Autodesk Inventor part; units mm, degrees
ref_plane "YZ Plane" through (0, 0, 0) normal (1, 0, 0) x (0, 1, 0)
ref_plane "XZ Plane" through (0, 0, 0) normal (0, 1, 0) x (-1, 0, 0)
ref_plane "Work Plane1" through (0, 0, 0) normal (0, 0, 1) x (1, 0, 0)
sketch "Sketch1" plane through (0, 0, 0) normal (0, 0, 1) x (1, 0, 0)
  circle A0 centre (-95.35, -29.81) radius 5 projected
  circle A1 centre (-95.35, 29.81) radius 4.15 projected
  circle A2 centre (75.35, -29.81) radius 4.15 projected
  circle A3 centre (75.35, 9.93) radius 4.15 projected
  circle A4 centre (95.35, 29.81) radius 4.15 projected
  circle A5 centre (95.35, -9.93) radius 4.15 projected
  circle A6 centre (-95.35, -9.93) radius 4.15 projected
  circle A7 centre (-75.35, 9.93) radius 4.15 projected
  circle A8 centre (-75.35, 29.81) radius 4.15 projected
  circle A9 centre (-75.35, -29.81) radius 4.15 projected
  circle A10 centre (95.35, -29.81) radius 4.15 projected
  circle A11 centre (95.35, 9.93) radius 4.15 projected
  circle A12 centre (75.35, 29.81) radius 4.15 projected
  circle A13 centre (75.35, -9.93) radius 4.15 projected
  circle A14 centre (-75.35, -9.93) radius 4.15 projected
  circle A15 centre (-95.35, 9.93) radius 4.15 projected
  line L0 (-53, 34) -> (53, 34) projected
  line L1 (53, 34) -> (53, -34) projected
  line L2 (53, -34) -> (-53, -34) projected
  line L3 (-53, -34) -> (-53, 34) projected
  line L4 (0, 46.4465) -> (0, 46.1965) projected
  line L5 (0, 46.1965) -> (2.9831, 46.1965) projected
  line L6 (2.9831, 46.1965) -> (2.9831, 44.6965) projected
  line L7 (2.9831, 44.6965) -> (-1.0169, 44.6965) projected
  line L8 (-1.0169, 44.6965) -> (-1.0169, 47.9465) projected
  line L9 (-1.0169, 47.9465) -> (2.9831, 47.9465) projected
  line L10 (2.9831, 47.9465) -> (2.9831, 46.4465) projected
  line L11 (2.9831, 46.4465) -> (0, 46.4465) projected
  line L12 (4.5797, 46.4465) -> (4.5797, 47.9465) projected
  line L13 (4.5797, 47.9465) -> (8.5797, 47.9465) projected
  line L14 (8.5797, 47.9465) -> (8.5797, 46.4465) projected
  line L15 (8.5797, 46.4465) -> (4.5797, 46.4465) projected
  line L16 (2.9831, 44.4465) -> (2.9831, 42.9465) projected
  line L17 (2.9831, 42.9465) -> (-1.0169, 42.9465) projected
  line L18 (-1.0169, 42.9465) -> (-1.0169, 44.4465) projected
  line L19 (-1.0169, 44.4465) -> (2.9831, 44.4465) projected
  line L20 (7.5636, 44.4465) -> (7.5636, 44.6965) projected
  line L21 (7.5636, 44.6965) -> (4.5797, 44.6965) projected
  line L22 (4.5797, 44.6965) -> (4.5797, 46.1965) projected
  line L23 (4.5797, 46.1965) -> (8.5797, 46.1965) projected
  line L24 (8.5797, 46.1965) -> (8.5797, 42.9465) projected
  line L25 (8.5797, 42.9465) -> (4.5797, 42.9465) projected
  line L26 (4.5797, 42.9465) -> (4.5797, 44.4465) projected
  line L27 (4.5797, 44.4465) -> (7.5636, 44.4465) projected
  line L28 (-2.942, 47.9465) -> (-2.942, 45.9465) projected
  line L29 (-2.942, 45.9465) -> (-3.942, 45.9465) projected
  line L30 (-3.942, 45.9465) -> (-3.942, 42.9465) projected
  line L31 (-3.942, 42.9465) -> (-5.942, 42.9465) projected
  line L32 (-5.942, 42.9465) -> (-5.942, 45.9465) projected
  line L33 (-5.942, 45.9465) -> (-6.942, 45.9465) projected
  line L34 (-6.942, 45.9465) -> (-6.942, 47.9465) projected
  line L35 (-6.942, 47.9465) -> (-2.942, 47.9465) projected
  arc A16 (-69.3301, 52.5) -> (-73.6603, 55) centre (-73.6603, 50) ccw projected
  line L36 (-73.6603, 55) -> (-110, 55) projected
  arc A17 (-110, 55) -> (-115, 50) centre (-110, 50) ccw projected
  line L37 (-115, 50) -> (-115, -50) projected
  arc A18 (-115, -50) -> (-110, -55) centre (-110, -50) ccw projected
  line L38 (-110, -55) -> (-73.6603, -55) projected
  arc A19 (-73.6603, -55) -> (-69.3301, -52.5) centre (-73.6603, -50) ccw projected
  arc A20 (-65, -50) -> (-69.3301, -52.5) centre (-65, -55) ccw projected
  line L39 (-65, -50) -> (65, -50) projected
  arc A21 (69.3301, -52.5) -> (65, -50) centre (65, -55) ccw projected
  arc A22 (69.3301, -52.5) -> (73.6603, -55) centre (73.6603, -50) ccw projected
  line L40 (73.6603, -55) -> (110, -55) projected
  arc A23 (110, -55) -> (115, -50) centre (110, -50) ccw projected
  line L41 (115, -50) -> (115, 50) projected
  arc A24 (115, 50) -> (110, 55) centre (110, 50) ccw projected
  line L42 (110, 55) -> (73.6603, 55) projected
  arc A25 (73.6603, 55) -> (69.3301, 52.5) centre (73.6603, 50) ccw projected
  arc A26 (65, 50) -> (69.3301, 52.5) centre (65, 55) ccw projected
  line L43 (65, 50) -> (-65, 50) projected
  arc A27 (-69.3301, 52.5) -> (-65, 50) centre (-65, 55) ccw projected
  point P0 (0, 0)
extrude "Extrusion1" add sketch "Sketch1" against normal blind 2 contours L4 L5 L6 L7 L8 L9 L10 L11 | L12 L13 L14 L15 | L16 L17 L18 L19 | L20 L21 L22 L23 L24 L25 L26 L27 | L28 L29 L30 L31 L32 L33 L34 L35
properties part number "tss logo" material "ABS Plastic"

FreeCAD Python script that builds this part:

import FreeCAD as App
import Part
import Sketcher
from FreeCAD import Vector

doc = App.newDocument("Part")
params = doc.addObject("Spreadsheet::Sheet", "Params")
for row, (alias, value) in enumerate([
    ("sketch1_width", "4 mm"),
    ("sketch1_width2", "1 mm"),
    ("sketch1_height", "3 mm"),
    ("sketch1_height2", "1.5 mm"),
    ("pad1_length", "2 mm"),
], start=1):
    params.set(f"A{row}", alias)
    params.set(f"B{row}", "=" + value)
    params.setAlias(f"B{row}", alias)

body = doc.addObject("PartDesign::Body", "Body")
body.AllowCompound = True

# Sketch on XY plane
sketch1 = body.newObject("Sketcher::SketchObject", "Sketch")
sketch1.AttachmentSupport = (doc.getObject("XY_Plane"), [""])
sketch1.MapMode = "FlatFace"
sketch1.addGeometry([
    Part.LineSegment(Vector(0, 46.2, 0), Vector(0, 46.45, 0)),  # 0
    Part.LineSegment(Vector(0, 46.45, 0), Vector(2.98, 46.45, 0)),  # 1
    Part.LineSegment(Vector(2.98, 46.45, 0), Vector(2.98, 47.95, 0)),  # 2
    Part.LineSegment(Vector(2.98, 47.95, 0), Vector(-1.02, 47.95, 0)),  # 3
    Part.LineSegment(Vector(-1.02, 47.95, 0), Vector(-1.02, 44.7, 0)),  # 4
    Part.LineSegment(Vector(-1.02, 44.7, 0), Vector(2.98, 44.7, 0)),  # 5
    Part.LineSegment(Vector(2.98, 44.7, 0), Vector(2.98, 46.2, 0)),  # 6
    Part.LineSegment(Vector(2.98, 46.2, 0), Vector(0, 46.2, 0)),  # 7
    Part.LineSegment(Vector(4.58, 47.95, 0), Vector(4.58, 46.45, 0)),  # 8
    Part.LineSegment(Vector(4.58, 46.45, 0), Vector(8.58, 46.45, 0)),  # 9
    Part.LineSegment(Vector(8.58, 46.45, 0), Vector(8.58, 47.95, 0)),  # 10
    Part.LineSegment(Vector(8.58, 47.95, 0), Vector(4.58, 47.95, 0)),  # 11
    Part.LineSegment(Vector(2.98, 42.95, 0), Vector(2.98, 44.45, 0)),  # 12
    Part.LineSegment(Vector(2.98, 44.45, 0), Vector(-1.02, 44.45, 0)),  # 13
    Part.LineSegment(Vector(-1.02, 44.45, 0), Vector(-1.02, 42.95, 0)),  # 14
    Part.LineSegment(Vector(-1.02, 42.95, 0), Vector(2.98, 42.95, 0)),  # 15
    Part.LineSegment(Vector(7.56, 44.7, 0), Vector(7.56, 44.45, 0)),  # 16
    Part.LineSegment(Vector(7.56, 44.45, 0), Vector(4.58, 44.45, 0)),  # 17
    Part.LineSegment(Vector(4.58, 44.45, 0), Vector(4.58, 42.95, 0)),  # 18
    Part.LineSegment(Vector(4.58, 42.95, 0), Vector(8.58, 42.95, 0)),  # 19
    Part.LineSegment(Vector(8.58, 42.95, 0), Vector(8.58, 46.2, 0)),  # 20
    Part.LineSegment(Vector(8.58, 46.2, 0), Vector(4.58, 46.2, 0)),  # 21
    Part.LineSegment(Vector(4.58, 46.2, 0), Vector(4.58, 44.7, 0)),  # 22
    Part.LineSegment(Vector(4.58, 44.7, 0), Vector(7.56, 44.7, 0)),  # 23
    Part.LineSegment(Vector(-2.94, 45.95, 0), Vector(-2.94, 47.95, 0)),  # 24
    Part.LineSegment(Vector(-2.94, 47.95, 0), Vector(-6.94, 47.95, 0)),  # 25
    Part.LineSegment(Vector(-6.94, 47.95, 0), Vector(-6.94, 45.95, 0)),  # 26
    Part.LineSegment(Vector(-6.94, 45.95, 0), Vector(-5.94, 45.95, 0)),  # 27
    Part.LineSegment(Vector(-5.94, 45.95, 0), Vector(-5.94, 42.95, 0)),  # 28
    Part.LineSegment(Vector(-5.94, 42.95, 0), Vector(-3.94, 42.95, 0)),  # 29
    Part.LineSegment(Vector(-3.94, 42.95, 0), Vector(-3.94, 45.95, 0)),  # 30
    Part.LineSegment(Vector(-3.94, 45.95, 0), Vector(-2.94, 45.95, 0)),  # 31
], False)
sketch1.addConstraint([
    Sketcher.Constraint("Coincident", 0, 2, 1, 1),
    Sketcher.Constraint("Coincident", 1, 2, 2, 1),
    Sketcher.Constraint("Coincident", 2, 2, 3, 1),
    Sketcher.Constraint("Coincident", 3, 2, 4, 1),
    Sketcher.Constraint("Coincident", 4, 2, 5, 1),
    Sketcher.Constraint("Coincident", 5, 2, 6, 1),
    Sketcher.Constraint("Coincident", 6, 2, 7, 1),
    Sketcher.Constraint("Coincident", 7, 2, 0, 1),
    Sketcher.Constraint("Coincident", 8, 2, 9, 1),
    Sketcher.Constraint("Coincident", 9, 2, 10, 1),
    Sketcher.Constraint("Coincident", 10, 2, 11, 1),
    Sketcher.Constraint("Coincident", 11, 2, 8, 1),
    Sketcher.Constraint("Coincident", 12, 2, 13, 1),
    Sketcher.Constraint("Coincident", 13, 2, 14, 1),
    Sketcher.Constraint("Coincident", 14, 2, 15, 1),
    Sketcher.Constraint("Coincident", 15, 2, 12, 1),
    Sketcher.Constraint("Coincident", 16, 2, 17, 1),
    Sketcher.Constraint("Coincident", 17, 2, 18, 1),
    Sketcher.Constraint("Coincident", 18, 2, 19, 1),
    Sketcher.Constraint("Coincident", 19, 2, 20, 1),
    Sketcher.Constraint("Coincident", 20, 2, 21, 1),
    Sketcher.Constraint("Coincident", 21, 2, 22, 1),
    Sketcher.Constraint("Coincident", 22, 2, 23, 1),
    Sketcher.Constraint("Coincident", 23, 2, 16, 1),
    Sketcher.Constraint("Coincident", 24, 2, 25, 1),
    Sketcher.Constraint("Coincident", 25, 2, 26, 1),
    Sketcher.Constraint("Coincident", 26, 2, 27, 1),
    Sketcher.Constraint("Coincident", 27, 2, 28, 1),
    Sketcher.Constraint("Coincident", 28, 2, 29, 1),
    Sketcher.Constraint("Coincident", 29, 2, 30, 1),
    Sketcher.Constraint("Coincident", 30, 2, 31, 1),
    Sketcher.Constraint("Coincident", 31, 2, 24, 1),
    Sketcher.Constraint("Vertical", 0),
    Sketcher.Constraint("Horizontal", 1),
    Sketcher.Constraint("Vertical", 2),
    Sketcher.Constraint("Horizontal", 3),
    Sketcher.Constraint("Vertical", 4),
    Sketcher.Constraint("Horizontal", 5),
    Sketcher.Constraint("Vertical", 6),
    Sketcher.Constraint("Horizontal", 7),
    Sketcher.Constraint("Vertical", 8),
    Sketcher.Constraint("Horizontal", 9),
    Sketcher.Constraint("Vertical", 10),
    Sketcher.Constraint("Horizontal", 11),
    Sketcher.Constraint("Vertical", 12),
    Sketcher.Constraint("Horizontal", 13),
    Sketcher.Constraint("Vertical", 14),
    Sketcher.Constraint("Horizontal", 15),
    Sketcher.Constraint("Vertical", 16),
    Sketcher.Constraint("Horizontal", 17),
    Sketcher.Constraint("Vertical", 18),
    Sketcher.Constraint("Horizontal", 19),
    Sketcher.Constraint("Vertical", 20),
    Sketcher.Constraint("Horizontal", 21),
    Sketcher.Constraint("Vertical", 22),
    Sketcher.Constraint("Horizontal", 23),
    Sketcher.Constraint("Vertical", 24),
    Sketcher.Constraint("Horizontal", 25),
    Sketcher.Constraint("Vertical", 26),
    Sketcher.Constraint("Horizontal", 27),
    Sketcher.Constraint("Vertical", 28),
    Sketcher.Constraint("Horizontal", 29),
    Sketcher.Constraint("Vertical", 30),
    Sketcher.Constraint("Horizontal", 31),
    Sketcher.Constraint("PointOnObject", 0, 2, -2),
    Sketcher.Constraint("Horizontal", 1, 2, 8, 2),
    Sketcher.Constraint("Horizontal", 3, 2, 10, 2),
    Sketcher.Constraint("Horizontal", 13, 2, 16, 2),
    Sketcher.Constraint("Horizontal", 15, 2, 18, 2),
    Sketcher.Constraint("Horizontal", 7, 2, 20, 2),
    Sketcher.Constraint("Horizontal", 5, 2, 22, 2),
    Sketcher.Constraint("Horizontal", 11, 2, 24, 2),
    Sketcher.Constraint("Horizontal", 19, 2, 28, 2),
    Sketcher.Constraint("Horizontal", 27, 2, 30, 2),
    Sketcher.Constraint("Vertical", 2, 2, 5, 2),
    Sketcher.Constraint("Vertical", 6, 2, 12, 2),
    Sketcher.Constraint("Vertical", 4, 2, 13, 2),
    Sketcher.Constraint("Vertical", 11, 2, 17, 2),
    Sketcher.Constraint("Vertical", 10, 2, 19, 2),
    Sketcher.Constraint("Vertical", 18, 2, 21, 2),
    Sketcher.Constraint("Equal", 5, 9),
    Sketcher.Constraint("Equal", 21, 25),
    Sketcher.Constraint("Equal", 27, 31),
    Sketcher.Constraint("Equal", 2, 6),
    Sketcher.Constraint("Equal", 10, 12),
    Sketcher.Constraint("Equal", 0, 16),
    Sketcher.Constraint("Equal", 29, 24),
    Sketcher.Constraint("DistanceX", 3, 2, 3, 1, 4.0),
    Sketcher.Constraint("DistanceX", 27, 1, 27, 2, 1.0),
    Sketcher.Constraint("DistanceY", 28, 2, 28, 1, 3.0),
    Sketcher.Constraint("DistanceY", 2, 1, 2, 2, 1.5),
    Sketcher.Constraint("DistanceX", 1, 1, 1, 2, 2.983),
    Sketcher.Constraint("DistanceX", 17, 2, 17, 1, 2.984),
    Sketcher.Constraint("DistanceX", 24, 2, -1, 1, 2.942),
    Sketcher.Constraint("DistanceY", -1, 1, 0, 2, 46.4465),
    Sketcher.Constraint("DistanceX", -1, 1, 8, 2, 4.5797),
])
sketch1.setExpression("Constraints[87]", "Params.sketch1_width")
sketch1.setExpression("Constraints[88]", "Params.sketch1_width2")
sketch1.setExpression("Constraints[89]", "Params.sketch1_height")
sketch1.setExpression("Constraints[90]", "Params.sketch1_height2")
pad1 = body.newObject("PartDesign::Pad", "Pad")
pad1.Profile = sketch1
pad1.setExpression("Length", "Params.pad1_length")
pad1.Reversed = True

doc.recompute()
